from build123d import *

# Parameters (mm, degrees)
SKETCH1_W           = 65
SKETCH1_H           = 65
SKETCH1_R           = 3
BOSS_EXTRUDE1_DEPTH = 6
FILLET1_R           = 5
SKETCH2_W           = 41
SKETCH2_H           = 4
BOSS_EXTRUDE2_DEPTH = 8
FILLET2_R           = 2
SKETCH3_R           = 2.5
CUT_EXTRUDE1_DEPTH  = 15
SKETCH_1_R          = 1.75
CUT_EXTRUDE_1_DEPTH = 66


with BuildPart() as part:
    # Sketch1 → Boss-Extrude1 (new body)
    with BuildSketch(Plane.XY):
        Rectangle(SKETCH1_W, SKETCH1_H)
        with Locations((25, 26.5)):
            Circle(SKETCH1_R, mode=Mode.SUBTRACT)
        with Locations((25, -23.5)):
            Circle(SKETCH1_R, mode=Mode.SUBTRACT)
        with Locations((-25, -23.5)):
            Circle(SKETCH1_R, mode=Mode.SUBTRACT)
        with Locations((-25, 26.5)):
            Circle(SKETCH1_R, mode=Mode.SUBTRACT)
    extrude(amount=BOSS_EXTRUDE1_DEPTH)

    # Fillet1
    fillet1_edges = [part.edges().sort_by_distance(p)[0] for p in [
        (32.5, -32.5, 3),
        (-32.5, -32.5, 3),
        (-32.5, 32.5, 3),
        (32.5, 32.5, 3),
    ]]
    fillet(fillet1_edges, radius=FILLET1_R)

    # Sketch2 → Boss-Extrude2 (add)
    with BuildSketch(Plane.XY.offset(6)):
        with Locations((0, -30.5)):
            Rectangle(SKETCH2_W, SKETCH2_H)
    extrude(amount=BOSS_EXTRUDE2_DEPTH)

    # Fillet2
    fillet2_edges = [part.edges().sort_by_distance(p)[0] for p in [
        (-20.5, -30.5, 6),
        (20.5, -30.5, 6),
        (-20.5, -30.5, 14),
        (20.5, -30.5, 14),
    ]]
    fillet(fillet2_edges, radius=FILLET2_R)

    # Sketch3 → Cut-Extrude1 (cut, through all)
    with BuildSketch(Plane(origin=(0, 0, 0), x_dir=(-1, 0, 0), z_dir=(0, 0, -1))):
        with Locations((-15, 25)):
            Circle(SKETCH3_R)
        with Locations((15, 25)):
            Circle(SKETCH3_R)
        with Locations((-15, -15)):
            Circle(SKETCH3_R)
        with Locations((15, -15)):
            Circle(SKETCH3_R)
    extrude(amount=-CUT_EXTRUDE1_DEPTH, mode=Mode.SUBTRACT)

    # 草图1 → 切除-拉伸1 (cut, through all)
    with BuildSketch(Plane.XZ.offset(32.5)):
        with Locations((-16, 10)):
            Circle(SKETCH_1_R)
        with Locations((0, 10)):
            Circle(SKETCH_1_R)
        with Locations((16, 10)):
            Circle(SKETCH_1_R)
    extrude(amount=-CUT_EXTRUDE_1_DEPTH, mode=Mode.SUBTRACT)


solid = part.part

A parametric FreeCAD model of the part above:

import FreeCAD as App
import Part
import Sketcher
from FreeCAD import Vector


def edges_at(feature, points):
    """Names of the edges that pass closest to the given points."""
    edges = feature.Shape.Edges
    near = lambda p: min(range(len(edges)), key=lambda i: edges[i].distToShape(Part.Vertex(*p))[0])
    return sorted({f"Edge{near(p) + 1}" for p in points})


def add_polygon(sketch, points):
    """Adds a closed chain of lines whose ends are joined by coincident constraints."""
    first, n = sketch.GeometryCount, len(points)
    for a, b in zip(points, points[1:] + points[:1]):
        sketch.addGeometry(Part.LineSegment(App.Vector(*a, 0), App.Vector(*b, 0)), False)
    for i in range(n):
        sketch.addConstraint(Sketcher.Constraint("Coincident", first + i, 2, first + (i + 1) % n, 1))

doc = App.newDocument("Part")
body = doc.addObject("PartDesign::Body", "Body")

# Sketch on XY plane
sketch1 = body.newObject("Sketcher::SketchObject", "Sketch")
sketch1.AttachmentSupport = (doc.getObject("XY_Plane"), [""])
sketch1.MapMode = "FlatFace"
add_polygon(sketch1, [(-32.5, 32.5), (-32.5, -32.5), (32.5, -32.5), (32.5, 32.5)])  # lines 0-3
sketch1.addGeometry(Part.Circle(Vector(-25, -23.5, 0), Vector(0, 0, 1), 3), False)  # 4
sketch1.addGeometry(Part.Circle(Vector(25, -23.5, 0), Vector(0, 0, 1), 3), False)  # 5
sketch1.addGeometry(Part.Circle(Vector(-25, 26.5, 0), Vector(0, 0, 1), 3), False)  # 6
sketch1.addGeometry(Part.Circle(Vector(25, 26.5, 0), Vector(0, 0, 1), 3), False)  # 7
sketch1.addConstraint([
    Sketcher.Constraint("Vertical", 0),
    Sketcher.Constraint("Horizontal", 1),
    Sketcher.Constraint("Vertical", 2),
    Sketcher.Constraint("Horizontal", 3),
    Sketcher.Constraint("Equal", 4, 5),
    Sketcher.Constraint("Equal", 5, 6),
    Sketcher.Constraint("Equal", 6, 7),
    Sketcher.Constraint("Symmetric", 0, 2, 2, 2, -1, 1),
    Sketcher.Constraint("Symmetric", 4, 3, 5, 3, -2),
    Sketcher.Constraint("Symmetric", 6, 3, 7, 3, -2),
    Sketcher.Constraint("Vertical", 4, 3, 6, 3),
    Sketcher.Constraint("Equal", 3, 0),
    Sketcher.Constraint("Diameter", 4, 6.0),
    Sketcher.Constraint("DistanceX", 1, 1, 1, 2, 65.0),
    Sketcher.Constraint("DistanceX", 4, 3, -1, 1, 25.0),
    Sketcher.Constraint("DistanceY", 4, 3, 6, 3, 50.0),
    Sketcher.Constraint("DistanceY", 0, 2, 4, 3, 9.0),
])
pad1 = body.newObject("PartDesign::Pad", "Pad")
pad1.Profile = sketch1
pad1.Length = 6
doc.recompute()

fillet = body.newObject("PartDesign::Fillet", "Fillet")
fillet.Base = (pad1, edges_at(pad1, [
    (32.5, -32.5, 3),
    (-32.5, -32.5, 3),
    (-32.5, 32.5, 3),
    (32.5, 32.5, 3),
]))
fillet.Radius = 5

# Sketch on XY plane
sketch2 = body.newObject("Sketcher::SketchObject", "Sketch001")
sketch2.AttachmentSupport = (doc.getObject("XY_Plane"), [""])
sketch2.MapMode = "FlatFace"
sketch2.AttachmentOffset = App.Placement(Vector(0, 0, 6), App.Rotation())
add_polygon(sketch2, [(-20.5, -28.5), (-20.5, -32.5), (20.5, -32.5), (20.5, -28.5)])  # lines 0-3
sketch2.addConstraint([
    Sketcher.Constraint("Vertical", 0),
    Sketcher.Constraint("Horizontal", 1),
    Sketcher.Constraint("Vertical", 2),
    Sketcher.Constraint("Horizontal", 3),
    Sketcher.Constraint("DistanceX", 1, 1, 1, 2, 41.0),
    Sketcher.Constraint("DistanceY", 0, 2, 0, 1, 4.0),
    Sketcher.Constraint("DistanceX", 0, 2, -1, 1, 20.5),
    Sketcher.Constraint("DistanceY", 0, 2, -1, 1, 32.5),
])
pad2 = body.newObject("PartDesign::Pad", "Pad001")
pad2.Profile = sketch2
pad2.Length = 8
doc.recompute()

fillet2 = body.newObject("PartDesign::Fillet", "Fillet001")
fillet2.Base = (pad2, edges_at(pad2, [
    (-20.5, -30.5, 6),
    (20.5, -30.5, 6),
    (-20.5, -30.5, 14),
    (20.5, -30.5, 14),
]))
fillet2.Radius = 2

# Sketch on XY plane
sketch3 = body.newObject("Sketcher::SketchObject", "Sketch002")
sketch3.AttachmentSupport = (doc.getObject("XY_Plane"), [""])
sketch3.MapMode = "FlatFace"
sketch3.addGeometry([
    Part.Circle(Vector(15, 25, 0), Vector(0, 0, 1), 2.5),
    Part.Circle(Vector(-15, 25, 0), Vector(0, 0, 1), 2.5),
    Part.Circle(Vector(15, -15, 0), Vector(0, 0, 1), 2.5),
    Part.Circle(Vector(-15, -15, 0), Vector(0, 0, 1), 2.5),
], False)
sketch3.addConstraint([
    Sketcher.Constraint("Equal", 0, 1),
    Sketcher.Constraint("Equal", 1, 2),
    Sketcher.Constraint("Equal", 2, 3),
    Sketcher.Constraint("Symmetric", 0, 3, 1, 3, -2),
    Sketcher.Constraint("Symmetric", 2, 3, 3, 3, -2),
    Sketcher.Constraint("Vertical", 0, 3, 2, 3),
    Sketcher.Constraint("Diameter", 0, 5.0),
    Sketcher.Constraint("DistanceX", -1, 1, 0, 3, 15.0),
    Sketcher.Constraint("DistanceY", -1, 1, 0, 3, 25.0),
    Sketcher.Constraint("DistanceY", 2, 3, -1, 1, 15.0),
])
pocket1 = body.newObject("PartDesign::Pocket", "Pocket")
pocket1.Profile = sketch3
pocket1.Type = "ThroughAll"
pocket1.Reversed = True

# Sketch on XZ plane
sketch4 = body.newObject("Sketcher::SketchObject", "Sketch003")
sketch4.AttachmentSupport = (doc.getObject("XZ_Plane"), [""])
sketch4.MapMode = "FlatFace"
sketch4.AttachmentOffset = App.Placement(Vector(0, 0, 32.5), App.Rotation())
sketch4.addGeometry([
    Part.Circle(Vector(-16, 10, 0), Vector(0, 0, 1), 1.8),
    Part.Circle(Vector(0, 10, 0), Vector(0, 0, 1), 1.8),
    Part.Circle(Vector(16, 10, 0), Vector(0, 0, 1), 1.8),
], False)
sketch4.addConstraint([
    Sketcher.Constraint("Equal", 0, 1),
    Sketcher.Constraint("Equal", 1, 2),
    Sketcher.Constraint("Symmetric", 0, 3, 2, 3, -2),
    Sketcher.Constraint("PointOnObject", 1, 3, -2),
    Sketcher.Constraint("Horizontal", 0, 3, 1, 3),
    Sketcher.Constraint("Diameter", 0, 3.5),
    Sketcher.Constraint("DistanceX", 0, 3, -1, 1, 16.0),
    Sketcher.Constraint("DistanceY", -1, 1, 0, 3, 10.0),
])
pocket2 = body.newObject("PartDesign::Pocket", "Pocket001")
pocket2.Profile = sketch4
pocket2.Type = "ThroughAll"

doc.recompute()
